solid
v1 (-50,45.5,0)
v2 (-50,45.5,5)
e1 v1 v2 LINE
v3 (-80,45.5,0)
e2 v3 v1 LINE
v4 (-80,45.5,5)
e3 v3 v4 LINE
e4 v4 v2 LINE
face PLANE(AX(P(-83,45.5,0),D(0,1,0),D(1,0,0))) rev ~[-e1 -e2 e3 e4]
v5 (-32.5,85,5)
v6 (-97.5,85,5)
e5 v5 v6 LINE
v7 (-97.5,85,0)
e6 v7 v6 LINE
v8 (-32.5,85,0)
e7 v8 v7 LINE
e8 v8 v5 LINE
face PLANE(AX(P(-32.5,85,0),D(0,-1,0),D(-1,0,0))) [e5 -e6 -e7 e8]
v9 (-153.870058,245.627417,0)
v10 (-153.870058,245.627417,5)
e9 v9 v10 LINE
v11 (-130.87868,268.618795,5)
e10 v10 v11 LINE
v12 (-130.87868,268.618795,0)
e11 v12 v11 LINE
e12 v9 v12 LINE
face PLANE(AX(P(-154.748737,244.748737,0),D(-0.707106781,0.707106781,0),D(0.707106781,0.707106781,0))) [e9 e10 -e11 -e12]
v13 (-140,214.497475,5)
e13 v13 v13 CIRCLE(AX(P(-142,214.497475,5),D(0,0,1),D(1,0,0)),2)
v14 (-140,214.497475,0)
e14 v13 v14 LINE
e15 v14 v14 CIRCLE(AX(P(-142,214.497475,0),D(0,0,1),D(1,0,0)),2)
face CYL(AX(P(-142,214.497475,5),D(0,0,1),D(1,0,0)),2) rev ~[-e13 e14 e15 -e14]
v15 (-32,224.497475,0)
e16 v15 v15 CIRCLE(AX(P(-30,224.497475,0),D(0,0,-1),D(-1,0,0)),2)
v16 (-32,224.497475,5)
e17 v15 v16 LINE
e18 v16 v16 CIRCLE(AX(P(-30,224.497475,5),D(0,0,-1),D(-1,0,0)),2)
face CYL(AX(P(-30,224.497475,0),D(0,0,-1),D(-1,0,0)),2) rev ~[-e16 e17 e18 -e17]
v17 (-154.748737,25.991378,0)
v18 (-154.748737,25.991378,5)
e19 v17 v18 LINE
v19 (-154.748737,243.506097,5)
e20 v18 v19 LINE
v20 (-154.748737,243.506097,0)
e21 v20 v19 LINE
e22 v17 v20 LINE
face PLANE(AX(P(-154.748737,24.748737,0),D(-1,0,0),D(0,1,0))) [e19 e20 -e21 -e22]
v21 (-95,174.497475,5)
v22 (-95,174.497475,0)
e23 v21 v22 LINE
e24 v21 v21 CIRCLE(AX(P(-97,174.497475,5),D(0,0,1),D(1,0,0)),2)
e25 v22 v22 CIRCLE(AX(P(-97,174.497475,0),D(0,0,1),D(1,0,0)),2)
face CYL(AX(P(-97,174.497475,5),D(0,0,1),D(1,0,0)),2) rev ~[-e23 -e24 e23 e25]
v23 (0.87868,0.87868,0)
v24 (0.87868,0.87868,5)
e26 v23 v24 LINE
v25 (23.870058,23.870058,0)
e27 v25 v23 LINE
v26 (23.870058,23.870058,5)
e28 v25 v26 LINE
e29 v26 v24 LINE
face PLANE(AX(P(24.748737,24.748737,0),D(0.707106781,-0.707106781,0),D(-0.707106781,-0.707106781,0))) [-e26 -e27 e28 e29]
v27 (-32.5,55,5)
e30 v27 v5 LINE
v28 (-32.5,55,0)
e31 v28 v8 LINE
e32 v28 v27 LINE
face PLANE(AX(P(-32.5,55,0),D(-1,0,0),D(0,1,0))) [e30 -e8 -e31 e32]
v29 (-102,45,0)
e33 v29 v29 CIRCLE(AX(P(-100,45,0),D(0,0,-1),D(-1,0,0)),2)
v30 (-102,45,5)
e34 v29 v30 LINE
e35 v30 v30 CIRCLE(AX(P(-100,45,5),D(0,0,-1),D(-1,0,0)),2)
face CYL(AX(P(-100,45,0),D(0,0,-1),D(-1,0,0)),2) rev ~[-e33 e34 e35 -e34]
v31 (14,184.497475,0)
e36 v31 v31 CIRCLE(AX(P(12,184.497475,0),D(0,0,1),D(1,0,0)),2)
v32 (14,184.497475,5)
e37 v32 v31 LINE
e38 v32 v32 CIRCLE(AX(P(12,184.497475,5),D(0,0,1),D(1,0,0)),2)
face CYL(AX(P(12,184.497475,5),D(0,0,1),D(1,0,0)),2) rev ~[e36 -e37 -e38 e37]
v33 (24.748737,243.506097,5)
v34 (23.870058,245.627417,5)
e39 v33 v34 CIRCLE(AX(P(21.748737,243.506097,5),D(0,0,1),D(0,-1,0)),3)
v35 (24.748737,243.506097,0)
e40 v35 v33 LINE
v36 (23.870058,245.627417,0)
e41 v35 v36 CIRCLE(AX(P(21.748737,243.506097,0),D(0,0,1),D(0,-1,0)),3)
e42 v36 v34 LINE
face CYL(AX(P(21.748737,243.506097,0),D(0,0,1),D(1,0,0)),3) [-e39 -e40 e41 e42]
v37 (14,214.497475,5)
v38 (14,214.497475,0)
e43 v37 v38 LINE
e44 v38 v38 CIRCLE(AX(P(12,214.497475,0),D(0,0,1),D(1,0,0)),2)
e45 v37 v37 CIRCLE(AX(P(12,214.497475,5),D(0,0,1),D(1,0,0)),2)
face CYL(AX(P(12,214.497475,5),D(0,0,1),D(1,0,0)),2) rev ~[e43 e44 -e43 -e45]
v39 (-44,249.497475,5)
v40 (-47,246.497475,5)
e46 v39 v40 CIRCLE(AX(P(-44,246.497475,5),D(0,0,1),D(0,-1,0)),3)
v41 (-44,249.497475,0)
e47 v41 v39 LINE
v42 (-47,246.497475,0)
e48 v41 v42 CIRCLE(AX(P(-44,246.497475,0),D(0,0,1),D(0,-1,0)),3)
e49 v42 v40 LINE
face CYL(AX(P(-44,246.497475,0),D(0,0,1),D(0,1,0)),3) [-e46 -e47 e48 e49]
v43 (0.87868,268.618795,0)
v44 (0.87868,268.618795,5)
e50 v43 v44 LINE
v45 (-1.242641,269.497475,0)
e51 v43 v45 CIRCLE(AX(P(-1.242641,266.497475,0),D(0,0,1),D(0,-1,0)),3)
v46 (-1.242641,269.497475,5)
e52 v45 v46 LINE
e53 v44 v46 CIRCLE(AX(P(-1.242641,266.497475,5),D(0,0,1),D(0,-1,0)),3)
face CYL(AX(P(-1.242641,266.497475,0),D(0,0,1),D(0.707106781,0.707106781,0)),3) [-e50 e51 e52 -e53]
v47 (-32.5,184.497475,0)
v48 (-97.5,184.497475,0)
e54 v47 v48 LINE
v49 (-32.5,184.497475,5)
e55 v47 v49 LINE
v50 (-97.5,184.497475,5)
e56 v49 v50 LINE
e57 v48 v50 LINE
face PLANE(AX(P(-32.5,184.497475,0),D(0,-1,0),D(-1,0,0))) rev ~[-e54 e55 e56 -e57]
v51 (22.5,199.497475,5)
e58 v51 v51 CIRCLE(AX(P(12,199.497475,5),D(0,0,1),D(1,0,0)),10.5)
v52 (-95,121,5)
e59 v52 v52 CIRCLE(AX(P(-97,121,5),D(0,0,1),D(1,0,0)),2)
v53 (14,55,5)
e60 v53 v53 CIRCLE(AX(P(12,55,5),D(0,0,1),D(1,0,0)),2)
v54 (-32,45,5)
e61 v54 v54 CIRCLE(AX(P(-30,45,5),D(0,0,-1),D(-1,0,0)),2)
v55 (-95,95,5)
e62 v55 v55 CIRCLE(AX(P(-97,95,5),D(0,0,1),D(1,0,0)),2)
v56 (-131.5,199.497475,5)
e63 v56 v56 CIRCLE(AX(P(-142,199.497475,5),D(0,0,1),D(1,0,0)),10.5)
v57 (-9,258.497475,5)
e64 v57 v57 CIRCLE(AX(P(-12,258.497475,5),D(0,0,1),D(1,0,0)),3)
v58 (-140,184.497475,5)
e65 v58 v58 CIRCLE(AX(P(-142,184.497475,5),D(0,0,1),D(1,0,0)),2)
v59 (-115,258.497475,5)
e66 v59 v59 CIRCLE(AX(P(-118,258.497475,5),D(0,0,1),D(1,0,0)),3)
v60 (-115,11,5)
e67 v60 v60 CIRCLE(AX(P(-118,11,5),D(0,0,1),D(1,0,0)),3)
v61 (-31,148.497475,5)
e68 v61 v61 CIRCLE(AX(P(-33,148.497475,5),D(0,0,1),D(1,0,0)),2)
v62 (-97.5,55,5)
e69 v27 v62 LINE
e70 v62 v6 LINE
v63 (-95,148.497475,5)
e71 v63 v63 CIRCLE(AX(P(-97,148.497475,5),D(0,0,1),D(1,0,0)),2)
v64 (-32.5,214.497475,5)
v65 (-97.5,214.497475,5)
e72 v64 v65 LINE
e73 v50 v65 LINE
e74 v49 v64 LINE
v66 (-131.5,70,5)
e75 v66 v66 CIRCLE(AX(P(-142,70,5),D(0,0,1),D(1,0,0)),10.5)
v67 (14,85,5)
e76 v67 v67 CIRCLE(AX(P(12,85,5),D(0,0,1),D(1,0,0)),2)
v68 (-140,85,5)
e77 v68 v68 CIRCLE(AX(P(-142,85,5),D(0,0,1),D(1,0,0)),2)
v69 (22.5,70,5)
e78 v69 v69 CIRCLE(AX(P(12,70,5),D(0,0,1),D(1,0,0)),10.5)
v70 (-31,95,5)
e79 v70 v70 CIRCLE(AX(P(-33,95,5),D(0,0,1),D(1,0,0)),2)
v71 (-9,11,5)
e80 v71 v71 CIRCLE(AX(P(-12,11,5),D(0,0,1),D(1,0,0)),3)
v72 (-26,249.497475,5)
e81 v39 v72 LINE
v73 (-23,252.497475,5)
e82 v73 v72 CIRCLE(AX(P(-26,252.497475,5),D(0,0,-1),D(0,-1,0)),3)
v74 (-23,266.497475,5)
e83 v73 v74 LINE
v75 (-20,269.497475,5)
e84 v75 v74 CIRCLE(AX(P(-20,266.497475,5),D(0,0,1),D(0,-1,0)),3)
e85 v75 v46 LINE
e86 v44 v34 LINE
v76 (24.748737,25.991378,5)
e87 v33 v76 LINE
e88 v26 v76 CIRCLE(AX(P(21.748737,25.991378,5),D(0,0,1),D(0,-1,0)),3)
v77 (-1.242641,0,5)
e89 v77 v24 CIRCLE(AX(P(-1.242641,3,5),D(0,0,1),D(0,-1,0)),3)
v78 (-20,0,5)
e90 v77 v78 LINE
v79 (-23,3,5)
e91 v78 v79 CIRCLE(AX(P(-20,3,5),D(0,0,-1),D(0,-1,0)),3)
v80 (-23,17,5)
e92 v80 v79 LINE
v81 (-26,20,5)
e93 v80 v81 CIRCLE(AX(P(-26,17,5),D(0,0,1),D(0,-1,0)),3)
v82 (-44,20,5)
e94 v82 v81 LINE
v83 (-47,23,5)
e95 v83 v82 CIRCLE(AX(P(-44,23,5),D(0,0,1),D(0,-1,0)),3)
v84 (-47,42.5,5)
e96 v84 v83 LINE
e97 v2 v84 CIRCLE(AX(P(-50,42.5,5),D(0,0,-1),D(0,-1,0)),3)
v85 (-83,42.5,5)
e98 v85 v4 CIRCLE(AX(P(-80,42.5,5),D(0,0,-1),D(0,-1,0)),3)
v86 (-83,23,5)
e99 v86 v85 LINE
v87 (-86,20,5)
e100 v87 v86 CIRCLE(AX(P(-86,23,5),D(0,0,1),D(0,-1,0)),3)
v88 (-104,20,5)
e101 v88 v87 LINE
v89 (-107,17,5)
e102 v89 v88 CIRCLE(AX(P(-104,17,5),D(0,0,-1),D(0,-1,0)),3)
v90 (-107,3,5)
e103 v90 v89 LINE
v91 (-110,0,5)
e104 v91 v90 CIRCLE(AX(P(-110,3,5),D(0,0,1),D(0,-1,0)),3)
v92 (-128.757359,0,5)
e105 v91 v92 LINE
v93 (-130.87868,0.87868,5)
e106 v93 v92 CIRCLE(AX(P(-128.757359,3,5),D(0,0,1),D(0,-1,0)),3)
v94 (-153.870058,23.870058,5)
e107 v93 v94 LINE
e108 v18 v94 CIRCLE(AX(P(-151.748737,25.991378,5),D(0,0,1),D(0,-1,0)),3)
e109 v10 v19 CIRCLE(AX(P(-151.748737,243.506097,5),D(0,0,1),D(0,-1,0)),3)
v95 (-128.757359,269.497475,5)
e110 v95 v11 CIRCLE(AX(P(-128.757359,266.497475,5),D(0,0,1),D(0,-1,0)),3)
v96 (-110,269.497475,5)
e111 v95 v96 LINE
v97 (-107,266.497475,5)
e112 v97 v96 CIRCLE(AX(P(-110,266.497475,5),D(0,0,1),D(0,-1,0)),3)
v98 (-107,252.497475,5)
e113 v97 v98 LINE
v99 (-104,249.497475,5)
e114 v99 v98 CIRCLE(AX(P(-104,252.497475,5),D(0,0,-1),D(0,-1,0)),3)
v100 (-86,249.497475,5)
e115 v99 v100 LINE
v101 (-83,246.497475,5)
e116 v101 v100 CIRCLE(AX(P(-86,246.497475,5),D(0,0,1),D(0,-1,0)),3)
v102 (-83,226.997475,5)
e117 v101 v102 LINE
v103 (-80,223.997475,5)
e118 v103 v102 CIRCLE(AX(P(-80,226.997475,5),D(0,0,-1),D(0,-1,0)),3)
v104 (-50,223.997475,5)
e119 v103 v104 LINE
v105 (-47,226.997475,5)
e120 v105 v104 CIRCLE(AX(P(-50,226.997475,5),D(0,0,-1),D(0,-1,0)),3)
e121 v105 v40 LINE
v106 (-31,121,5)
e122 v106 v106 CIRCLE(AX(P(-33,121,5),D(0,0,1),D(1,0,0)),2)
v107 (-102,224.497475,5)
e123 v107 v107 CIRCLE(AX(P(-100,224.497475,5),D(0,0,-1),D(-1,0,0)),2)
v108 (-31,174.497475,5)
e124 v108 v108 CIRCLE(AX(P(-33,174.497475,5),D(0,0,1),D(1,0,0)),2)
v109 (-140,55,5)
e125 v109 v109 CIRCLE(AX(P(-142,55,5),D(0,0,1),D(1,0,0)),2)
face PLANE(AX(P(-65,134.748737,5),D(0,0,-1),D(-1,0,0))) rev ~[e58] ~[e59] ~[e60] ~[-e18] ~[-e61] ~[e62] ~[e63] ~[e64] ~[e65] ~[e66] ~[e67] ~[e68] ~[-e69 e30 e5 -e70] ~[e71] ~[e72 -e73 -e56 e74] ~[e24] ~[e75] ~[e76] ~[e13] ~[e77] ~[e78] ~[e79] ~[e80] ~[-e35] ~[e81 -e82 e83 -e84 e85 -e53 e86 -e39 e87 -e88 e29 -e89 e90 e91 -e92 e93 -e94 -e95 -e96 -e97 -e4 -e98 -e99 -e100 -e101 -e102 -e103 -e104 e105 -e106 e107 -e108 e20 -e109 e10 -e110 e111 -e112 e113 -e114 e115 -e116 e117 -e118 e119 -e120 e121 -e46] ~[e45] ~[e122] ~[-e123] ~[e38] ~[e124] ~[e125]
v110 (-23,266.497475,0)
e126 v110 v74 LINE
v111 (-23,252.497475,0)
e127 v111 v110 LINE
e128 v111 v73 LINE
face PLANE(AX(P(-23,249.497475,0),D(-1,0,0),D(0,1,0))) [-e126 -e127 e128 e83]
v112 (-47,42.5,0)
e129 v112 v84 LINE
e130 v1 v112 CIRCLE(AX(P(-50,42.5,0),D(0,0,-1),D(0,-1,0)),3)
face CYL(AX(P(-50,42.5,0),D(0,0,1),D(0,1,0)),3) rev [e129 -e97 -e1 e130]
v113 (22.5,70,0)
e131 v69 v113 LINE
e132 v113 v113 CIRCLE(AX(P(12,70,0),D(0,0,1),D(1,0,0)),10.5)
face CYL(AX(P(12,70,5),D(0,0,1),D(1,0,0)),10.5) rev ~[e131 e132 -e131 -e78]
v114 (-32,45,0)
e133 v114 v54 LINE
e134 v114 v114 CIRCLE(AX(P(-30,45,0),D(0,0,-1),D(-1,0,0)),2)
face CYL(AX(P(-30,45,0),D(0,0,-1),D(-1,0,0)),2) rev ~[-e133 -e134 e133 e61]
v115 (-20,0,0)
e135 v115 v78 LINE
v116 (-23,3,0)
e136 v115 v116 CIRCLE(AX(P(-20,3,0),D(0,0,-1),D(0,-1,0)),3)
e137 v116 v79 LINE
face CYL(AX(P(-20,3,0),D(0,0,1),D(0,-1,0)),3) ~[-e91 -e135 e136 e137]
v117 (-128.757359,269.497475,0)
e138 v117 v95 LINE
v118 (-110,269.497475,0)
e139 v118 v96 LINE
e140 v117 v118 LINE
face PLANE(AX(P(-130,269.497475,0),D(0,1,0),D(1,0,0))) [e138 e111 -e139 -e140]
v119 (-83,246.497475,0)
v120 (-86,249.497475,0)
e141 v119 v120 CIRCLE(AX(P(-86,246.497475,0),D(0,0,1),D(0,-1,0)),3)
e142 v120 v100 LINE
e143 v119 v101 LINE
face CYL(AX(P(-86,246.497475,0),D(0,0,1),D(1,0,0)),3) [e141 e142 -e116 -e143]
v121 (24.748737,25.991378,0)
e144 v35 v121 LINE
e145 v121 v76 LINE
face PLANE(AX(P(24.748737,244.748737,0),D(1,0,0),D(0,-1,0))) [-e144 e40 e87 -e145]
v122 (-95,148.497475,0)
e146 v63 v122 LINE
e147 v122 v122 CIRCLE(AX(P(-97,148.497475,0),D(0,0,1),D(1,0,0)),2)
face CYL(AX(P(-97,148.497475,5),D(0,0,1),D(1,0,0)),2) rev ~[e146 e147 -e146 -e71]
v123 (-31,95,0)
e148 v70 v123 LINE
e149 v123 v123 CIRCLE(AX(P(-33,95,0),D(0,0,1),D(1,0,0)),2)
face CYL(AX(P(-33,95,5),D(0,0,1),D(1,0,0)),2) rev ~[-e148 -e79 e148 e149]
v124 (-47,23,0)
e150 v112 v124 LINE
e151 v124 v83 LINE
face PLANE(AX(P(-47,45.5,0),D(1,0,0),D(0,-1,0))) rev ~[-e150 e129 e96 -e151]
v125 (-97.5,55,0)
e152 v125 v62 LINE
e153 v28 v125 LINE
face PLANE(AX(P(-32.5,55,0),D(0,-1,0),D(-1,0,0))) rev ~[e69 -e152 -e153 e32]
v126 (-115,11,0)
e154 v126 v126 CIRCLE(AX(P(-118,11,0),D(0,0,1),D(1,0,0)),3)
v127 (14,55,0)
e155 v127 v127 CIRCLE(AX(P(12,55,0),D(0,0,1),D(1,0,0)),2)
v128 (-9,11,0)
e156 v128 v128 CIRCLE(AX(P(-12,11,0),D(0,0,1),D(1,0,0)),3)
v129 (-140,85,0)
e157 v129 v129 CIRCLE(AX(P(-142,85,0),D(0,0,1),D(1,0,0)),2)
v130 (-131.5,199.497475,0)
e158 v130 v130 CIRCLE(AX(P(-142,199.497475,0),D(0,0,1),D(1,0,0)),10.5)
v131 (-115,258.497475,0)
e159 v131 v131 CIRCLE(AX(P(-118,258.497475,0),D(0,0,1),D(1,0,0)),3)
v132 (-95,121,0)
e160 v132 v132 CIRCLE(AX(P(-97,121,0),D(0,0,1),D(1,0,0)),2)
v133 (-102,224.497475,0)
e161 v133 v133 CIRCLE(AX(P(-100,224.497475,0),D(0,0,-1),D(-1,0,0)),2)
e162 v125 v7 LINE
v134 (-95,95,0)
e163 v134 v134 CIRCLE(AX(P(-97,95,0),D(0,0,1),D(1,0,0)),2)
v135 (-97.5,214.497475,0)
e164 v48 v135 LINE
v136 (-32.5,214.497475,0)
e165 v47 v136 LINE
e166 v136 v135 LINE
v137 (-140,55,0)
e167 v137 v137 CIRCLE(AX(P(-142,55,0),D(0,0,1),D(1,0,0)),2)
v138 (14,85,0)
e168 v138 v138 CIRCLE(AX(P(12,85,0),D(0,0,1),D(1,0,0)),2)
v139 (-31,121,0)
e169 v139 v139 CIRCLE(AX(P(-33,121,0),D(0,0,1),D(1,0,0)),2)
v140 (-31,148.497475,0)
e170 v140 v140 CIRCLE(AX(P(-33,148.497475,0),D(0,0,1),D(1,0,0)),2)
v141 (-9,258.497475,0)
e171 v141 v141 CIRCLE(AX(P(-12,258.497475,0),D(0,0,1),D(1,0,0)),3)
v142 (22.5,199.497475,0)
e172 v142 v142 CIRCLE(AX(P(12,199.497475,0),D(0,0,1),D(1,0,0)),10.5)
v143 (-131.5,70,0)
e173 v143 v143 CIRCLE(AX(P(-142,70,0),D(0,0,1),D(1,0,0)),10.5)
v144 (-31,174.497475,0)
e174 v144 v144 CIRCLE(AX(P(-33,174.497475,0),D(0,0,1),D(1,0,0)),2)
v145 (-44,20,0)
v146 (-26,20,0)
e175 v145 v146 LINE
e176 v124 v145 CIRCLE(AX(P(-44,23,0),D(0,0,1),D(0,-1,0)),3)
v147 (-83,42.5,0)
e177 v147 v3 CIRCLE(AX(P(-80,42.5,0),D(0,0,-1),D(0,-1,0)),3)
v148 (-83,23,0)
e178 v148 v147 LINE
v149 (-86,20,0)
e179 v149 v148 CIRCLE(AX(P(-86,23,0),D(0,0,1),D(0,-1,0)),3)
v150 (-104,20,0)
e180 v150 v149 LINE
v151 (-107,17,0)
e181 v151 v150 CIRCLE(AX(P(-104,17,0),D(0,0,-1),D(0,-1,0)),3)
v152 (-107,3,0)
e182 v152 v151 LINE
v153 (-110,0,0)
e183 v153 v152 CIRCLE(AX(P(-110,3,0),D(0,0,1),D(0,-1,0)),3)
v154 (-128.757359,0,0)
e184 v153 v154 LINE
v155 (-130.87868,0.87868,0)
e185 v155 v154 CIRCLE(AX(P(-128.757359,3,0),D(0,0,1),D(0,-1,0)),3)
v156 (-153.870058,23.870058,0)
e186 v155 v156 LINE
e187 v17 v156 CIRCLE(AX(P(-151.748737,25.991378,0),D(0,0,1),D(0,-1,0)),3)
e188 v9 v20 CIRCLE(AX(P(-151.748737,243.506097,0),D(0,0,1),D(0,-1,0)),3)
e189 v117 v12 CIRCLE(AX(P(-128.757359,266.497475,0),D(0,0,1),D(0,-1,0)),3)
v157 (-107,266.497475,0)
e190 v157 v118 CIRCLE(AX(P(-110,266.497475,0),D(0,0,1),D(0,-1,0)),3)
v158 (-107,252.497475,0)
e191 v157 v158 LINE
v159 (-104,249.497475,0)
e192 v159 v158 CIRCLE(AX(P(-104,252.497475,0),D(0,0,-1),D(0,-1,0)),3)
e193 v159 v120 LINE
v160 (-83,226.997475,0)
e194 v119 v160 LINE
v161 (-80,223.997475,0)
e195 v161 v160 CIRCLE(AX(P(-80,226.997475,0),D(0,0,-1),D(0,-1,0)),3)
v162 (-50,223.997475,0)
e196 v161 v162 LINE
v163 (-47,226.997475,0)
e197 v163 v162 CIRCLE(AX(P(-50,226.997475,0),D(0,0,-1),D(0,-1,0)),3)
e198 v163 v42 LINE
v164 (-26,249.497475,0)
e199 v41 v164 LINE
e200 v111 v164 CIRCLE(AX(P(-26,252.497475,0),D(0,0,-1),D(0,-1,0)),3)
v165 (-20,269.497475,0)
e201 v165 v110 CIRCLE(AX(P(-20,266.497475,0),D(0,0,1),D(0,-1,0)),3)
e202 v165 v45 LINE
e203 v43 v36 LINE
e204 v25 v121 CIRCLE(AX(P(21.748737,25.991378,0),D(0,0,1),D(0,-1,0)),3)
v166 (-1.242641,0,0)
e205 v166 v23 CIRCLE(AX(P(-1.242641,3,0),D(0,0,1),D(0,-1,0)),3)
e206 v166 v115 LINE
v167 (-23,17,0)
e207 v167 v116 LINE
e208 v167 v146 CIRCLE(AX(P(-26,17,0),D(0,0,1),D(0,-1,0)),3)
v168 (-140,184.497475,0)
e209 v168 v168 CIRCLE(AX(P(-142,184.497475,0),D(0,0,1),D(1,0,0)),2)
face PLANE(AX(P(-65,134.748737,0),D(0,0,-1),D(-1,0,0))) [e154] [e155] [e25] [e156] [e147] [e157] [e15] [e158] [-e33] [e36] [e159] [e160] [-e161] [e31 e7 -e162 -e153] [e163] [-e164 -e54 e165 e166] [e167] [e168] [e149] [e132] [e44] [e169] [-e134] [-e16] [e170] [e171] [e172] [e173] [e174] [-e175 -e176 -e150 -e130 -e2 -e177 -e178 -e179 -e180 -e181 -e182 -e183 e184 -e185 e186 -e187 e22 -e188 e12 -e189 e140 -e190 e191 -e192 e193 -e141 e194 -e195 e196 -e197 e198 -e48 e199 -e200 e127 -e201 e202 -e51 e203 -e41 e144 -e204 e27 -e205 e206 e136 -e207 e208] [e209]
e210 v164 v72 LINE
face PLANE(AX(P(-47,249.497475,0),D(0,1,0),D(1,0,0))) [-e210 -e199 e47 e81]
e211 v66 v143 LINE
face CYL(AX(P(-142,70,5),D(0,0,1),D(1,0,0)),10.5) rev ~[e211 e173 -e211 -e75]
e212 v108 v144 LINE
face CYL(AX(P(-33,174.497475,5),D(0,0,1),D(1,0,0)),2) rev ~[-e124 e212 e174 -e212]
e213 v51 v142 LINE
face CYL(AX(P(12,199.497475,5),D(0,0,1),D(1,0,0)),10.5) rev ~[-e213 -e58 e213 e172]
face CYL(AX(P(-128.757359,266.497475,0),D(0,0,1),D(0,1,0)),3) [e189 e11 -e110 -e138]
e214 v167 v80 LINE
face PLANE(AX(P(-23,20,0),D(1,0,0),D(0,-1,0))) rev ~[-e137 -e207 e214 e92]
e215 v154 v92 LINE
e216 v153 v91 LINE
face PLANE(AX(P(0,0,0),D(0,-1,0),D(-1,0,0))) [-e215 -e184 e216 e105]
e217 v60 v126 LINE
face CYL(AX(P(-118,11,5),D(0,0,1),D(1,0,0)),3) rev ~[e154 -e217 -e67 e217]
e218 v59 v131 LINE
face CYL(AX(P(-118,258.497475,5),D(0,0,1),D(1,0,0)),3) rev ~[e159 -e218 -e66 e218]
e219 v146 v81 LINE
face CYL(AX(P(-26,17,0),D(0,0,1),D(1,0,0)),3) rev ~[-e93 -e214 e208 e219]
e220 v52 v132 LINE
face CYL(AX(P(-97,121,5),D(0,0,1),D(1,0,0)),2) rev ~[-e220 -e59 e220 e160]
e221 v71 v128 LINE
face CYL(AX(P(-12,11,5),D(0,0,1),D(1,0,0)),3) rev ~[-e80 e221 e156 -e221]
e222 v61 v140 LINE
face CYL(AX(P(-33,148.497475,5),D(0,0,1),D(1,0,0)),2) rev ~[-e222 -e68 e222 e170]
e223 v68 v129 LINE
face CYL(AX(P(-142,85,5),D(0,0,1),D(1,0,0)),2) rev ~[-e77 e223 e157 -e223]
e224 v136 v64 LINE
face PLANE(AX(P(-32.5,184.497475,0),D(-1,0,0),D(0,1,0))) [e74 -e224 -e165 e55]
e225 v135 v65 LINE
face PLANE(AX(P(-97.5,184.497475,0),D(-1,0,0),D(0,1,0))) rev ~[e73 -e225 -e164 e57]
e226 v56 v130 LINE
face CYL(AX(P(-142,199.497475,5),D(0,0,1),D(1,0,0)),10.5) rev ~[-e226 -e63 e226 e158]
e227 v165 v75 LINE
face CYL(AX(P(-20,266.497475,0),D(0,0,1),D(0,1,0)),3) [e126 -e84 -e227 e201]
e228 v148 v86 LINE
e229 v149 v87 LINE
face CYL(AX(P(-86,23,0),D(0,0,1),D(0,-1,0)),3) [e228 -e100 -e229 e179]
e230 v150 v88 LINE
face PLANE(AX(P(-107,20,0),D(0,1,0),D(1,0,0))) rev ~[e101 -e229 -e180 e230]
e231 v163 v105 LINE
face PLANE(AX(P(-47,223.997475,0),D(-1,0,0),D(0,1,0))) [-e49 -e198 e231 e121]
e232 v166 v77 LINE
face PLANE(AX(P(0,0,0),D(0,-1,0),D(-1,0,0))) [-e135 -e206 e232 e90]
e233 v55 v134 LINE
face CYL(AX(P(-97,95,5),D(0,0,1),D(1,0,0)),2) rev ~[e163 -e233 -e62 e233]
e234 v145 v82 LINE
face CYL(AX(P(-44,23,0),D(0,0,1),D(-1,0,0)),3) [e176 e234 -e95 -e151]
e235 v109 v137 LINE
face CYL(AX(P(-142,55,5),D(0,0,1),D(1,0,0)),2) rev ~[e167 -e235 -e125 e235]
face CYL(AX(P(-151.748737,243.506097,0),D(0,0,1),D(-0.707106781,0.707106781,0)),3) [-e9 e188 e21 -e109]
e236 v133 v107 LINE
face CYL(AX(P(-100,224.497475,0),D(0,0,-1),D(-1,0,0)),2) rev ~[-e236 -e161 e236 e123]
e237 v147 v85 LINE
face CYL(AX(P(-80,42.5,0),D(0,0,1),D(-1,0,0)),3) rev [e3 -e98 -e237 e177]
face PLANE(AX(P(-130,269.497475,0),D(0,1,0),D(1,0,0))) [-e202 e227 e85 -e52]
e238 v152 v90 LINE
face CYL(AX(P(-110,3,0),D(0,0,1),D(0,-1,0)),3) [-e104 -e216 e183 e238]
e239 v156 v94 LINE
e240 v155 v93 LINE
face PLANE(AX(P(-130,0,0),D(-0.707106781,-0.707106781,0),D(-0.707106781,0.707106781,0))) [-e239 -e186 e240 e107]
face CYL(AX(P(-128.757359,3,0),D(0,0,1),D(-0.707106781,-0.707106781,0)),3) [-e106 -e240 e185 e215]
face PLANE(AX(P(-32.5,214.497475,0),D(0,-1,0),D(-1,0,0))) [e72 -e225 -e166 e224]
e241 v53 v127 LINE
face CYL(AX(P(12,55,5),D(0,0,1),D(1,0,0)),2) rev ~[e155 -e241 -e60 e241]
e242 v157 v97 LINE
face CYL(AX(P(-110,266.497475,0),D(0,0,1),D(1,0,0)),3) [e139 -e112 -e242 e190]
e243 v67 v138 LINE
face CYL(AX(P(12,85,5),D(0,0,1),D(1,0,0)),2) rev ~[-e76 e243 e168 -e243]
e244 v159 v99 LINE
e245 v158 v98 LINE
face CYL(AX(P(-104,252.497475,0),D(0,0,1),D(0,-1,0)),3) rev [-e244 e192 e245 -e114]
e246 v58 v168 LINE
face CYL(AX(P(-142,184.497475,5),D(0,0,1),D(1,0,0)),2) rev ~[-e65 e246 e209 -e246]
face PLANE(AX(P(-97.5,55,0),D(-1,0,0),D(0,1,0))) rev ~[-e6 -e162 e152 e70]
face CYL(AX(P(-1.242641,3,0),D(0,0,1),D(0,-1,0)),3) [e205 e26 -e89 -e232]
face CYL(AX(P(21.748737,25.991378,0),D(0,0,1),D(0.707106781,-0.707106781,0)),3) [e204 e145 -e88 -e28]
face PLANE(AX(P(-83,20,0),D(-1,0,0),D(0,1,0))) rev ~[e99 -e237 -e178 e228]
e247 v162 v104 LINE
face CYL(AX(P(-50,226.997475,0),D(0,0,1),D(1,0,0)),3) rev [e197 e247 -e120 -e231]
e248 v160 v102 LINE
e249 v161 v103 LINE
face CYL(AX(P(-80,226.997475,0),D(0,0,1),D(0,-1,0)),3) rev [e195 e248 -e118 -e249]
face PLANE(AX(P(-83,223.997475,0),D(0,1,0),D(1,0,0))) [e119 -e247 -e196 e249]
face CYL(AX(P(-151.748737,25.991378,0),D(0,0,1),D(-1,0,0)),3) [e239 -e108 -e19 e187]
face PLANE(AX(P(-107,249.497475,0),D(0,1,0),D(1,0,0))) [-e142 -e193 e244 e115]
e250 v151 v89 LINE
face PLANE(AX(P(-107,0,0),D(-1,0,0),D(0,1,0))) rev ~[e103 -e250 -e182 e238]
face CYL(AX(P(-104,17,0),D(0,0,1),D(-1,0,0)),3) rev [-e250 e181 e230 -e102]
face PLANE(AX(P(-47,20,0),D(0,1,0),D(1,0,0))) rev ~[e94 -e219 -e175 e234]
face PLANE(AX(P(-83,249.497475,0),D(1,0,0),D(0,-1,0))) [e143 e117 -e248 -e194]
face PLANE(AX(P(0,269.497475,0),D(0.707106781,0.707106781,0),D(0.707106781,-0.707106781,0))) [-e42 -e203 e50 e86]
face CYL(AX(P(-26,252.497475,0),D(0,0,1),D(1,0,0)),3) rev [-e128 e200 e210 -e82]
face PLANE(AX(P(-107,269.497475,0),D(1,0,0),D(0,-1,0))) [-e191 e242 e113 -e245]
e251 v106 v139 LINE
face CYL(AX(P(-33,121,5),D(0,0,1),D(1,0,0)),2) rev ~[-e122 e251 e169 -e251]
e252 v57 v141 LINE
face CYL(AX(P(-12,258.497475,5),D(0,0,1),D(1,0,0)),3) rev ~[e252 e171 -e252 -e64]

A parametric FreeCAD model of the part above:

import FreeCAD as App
import Part
import Sketcher

V = App.Vector


def edges_at(feature, points):
    """Names of the edges that pass closest to the given points."""
    edges = feature.Shape.Edges
    near = lambda p: min(range(len(edges)), key=lambda i: edges[i].distToShape(Part.Vertex(*p))[0])
    return sorted({f"Edge{near(p) + 1}" for p in points})

doc = App.newDocument("Part")
body = doc.addObject("PartDesign::Body", "Body")

sketch1 = doc.addObject("Sketcher::SketchObject", "Sketch")
body.addObject(sketch1)
sketch1.AttachmentSupport = (doc.XY_Plane, [""])
sketch1.MapMode = "FlatFace"
sketch1.addGeometry([
    Part.LineSegment(V(-130, 0, 0), V(0, 0, 0)),
    Part.LineSegment(V(0, 0, 0), V(25, 25, 0)),
    Part.LineSegment(V(25, 25, 0), V(25, 245, 0)),
    Part.LineSegment(V(25, 245, 0), V(0, 269, 0)),
    Part.LineSegment(V(0, 269, 0), V(-130, 269, 0)),
    Part.LineSegment(V(-130, 269, 0), V(-155, 245, 0)),
    Part.LineSegment(V(-155, 245, 0), V(-155, 25, 0)),
    Part.LineSegment(V(-155, 25, 0), V(-130, 0, 0)),
], False)
sketch1.addConstraint([
    Sketcher.Constraint("Coincident", 0, 2, 1, 1),
    Sketcher.Constraint("Coincident", 1, 2, 2, 1),
    Sketcher.Constraint("Coincident", 2, 2, 3, 1),
    Sketcher.Constraint("Coincident", 3, 2, 4, 1),
    Sketcher.Constraint("Coincident", 4, 2, 5, 1),
    Sketcher.Constraint("Coincident", 5, 2, 6, 1),
    Sketcher.Constraint("Coincident", 6, 2, 7, 1),
    Sketcher.Constraint("Coincident", 7, 2, 0, 1),
    Sketcher.Constraint("Horizontal", 0),
    Sketcher.Constraint("Vertical", 2),
    Sketcher.Constraint("Horizontal", 4),
    Sketcher.Constraint("Vertical", 6),
    Sketcher.Constraint("Coincident", 0, 2, -1, 1),
    Sketcher.Constraint("PointOnObject", 3, 2, -2),
    Sketcher.Constraint("Perpendicular", 1, 3),
    Sketcher.Constraint("Perpendicular", 3, 5),
    Sketcher.Constraint("Perpendicular", 5, 7),
    Sketcher.Constraint("Horizontal", 2, 2, 5, 2),
    Sketcher.Constraint("Horizontal", 1, 2, 6, 2),
    Sketcher.Constraint("Vertical", 4, 2, 7, 2),
    Sketcher.Constraint("DistanceX", 0, 1, 0, 2, 130.0),
    Sketcher.Constraint("DistanceY", 2, 1, 2, 2, 220.0),
    Sketcher.Constraint("Distance", 1, 35.0),
])
pad1 = doc.addObject("PartDesign::Pad", "Pad")
body.addObject(pad1)
pad1.Profile = sketch1
pad1.Length = 5

sketch2 = doc.addObject("Sketcher::SketchObject", "Sketch001")
body.addObject(sketch2)
sketch2.AttachmentSupport = (doc.XY_Plane, [""])
sketch2.MapMode = "FlatFace"
sketch2.addGeometry([
    Part.Circle(V(-30, 45, 0), V(0, 0, 1), 2),
    Part.Circle(V(-100, 45, 0), V(0, 0, 1), 2),
    Part.Circle(V(-100, 224.5, 0), V(0, 0, 1), 2),
    Part.Circle(V(-30, 224.5, 0), V(0, 0, 1), 2),
    Part.LineSegment(V(-107, 0, 0), V(-107, 20, 0)),
    Part.LineSegment(V(-107, 20, 0), V(-83, 20, 0)),
    Part.LineSegment(V(-83, 20, 0), V(-83, 45.5, 0)),
    Part.LineSegment(V(-83, 45.5, 0), V(-47, 45.5, 0)),
    Part.LineSegment(V(-47, 45.5, 0), V(-47, 20, 0)),
    Part.LineSegment(V(-47, 20, 0), V(-23, 20, 0)),
    Part.LineSegment(V(-23, 20, 0), V(-23, 0, 0)),
    Part.LineSegment(V(-23, 0, 0), V(-107, 0, 0)),
    Part.LineSegment(V(-107, 269.5, 0), V(-23, 269.5, 0)),
    Part.LineSegment(V(-23, 269.5, 0), V(-23, 249.5, 0)),
    Part.LineSegment(V(-23, 249.5, 0), V(-47, 249.5, 0)),
    Part.LineSegment(V(-47, 249.5, 0), V(-47, 224, 0)),
    Part.LineSegment(V(-47, 224, 0), V(-83, 224, 0)),
    Part.LineSegment(V(-83, 224, 0), V(-83, 249.5, 0)),
    Part.LineSegment(V(-83, 249.5, 0), V(-107, 249.5, 0)),
    Part.LineSegment(V(-107, 249.5, 0), V(-107, 269.5, 0)),
    Part.LineSegment(V(-32.5, 214.5, 0), V(-32.5, 184.5, 0)),
    Part.LineSegment(V(-32.5, 184.5, 0), V(-97.5, 184.5, 0)),
    Part.LineSegment(V(-97.5, 184.5, 0), V(-97.5, 214.5, 0)),
    Part.LineSegment(V(-97.5, 214.5, 0), V(-32.5, 214.5, 0)),
    Part.LineSegment(V(-32.5, 85, 0), V(-32.5, 55, 0)),
    Part.LineSegment(V(-32.5, 55, 0), V(-97.5, 55, 0)),
    Part.LineSegment(V(-97.5, 55, 0), V(-97.5, 85, 0)),
    Part.LineSegment(V(-97.5, 85, 0), V(-32.5, 85, 0)),
], False)
sketch2.addConstraint([
    Sketcher.Constraint("Coincident", 4, 2, 5, 1),
    Sketcher.Constraint("Coincident", 5, 2, 6, 1),
    Sketcher.Constraint("Coincident", 6, 2, 7, 1),
    Sketcher.Constraint("Coincident", 7, 2, 8, 1),
    Sketcher.Constraint("Coincident", 8, 2, 9, 1),
    Sketcher.Constraint("Coincident", 9, 2, 10, 1),
    Sketcher.Constraint("Coincident", 10, 2, 11, 1),
    Sketcher.Constraint("Coincident", 11, 2, 4, 1),
    Sketcher.Constraint("Coincident", 12, 2, 13, 1),
    Sketcher.Constraint("Coincident", 13, 2, 14, 1),
    Sketcher.Constraint("Coincident", 14, 2, 15, 1),
    Sketcher.Constraint("Coincident", 15, 2, 16, 1),
    Sketcher.Constraint("Coincident", 16, 2, 17, 1),
    Sketcher.Constraint("Coincident", 17, 2, 18, 1),
    Sketcher.Constraint("Coincident", 18, 2, 19, 1),
    Sketcher.Constraint("Coincident", 19, 2, 12, 1),
    Sketcher.Constraint("Coincident", 20, 2, 21, 1),
    Sketcher.Constraint("Coincident", 21, 2, 22, 1),
    Sketcher.Constraint("Coincident", 22, 2, 23, 1),
    Sketcher.Constraint("Coincident", 23, 2, 20, 1),
    Sketcher.Constraint("Coincident", 24, 2, 25, 1),
    Sketcher.Constraint("Coincident", 25, 2, 26, 1),
    Sketcher.Constraint("Coincident", 26, 2, 27, 1),
    Sketcher.Constraint("Coincident", 27, 2, 24, 1),
    Sketcher.Constraint("Vertical", 4),
    Sketcher.Constraint("Horizontal", 5),
    Sketcher.Constraint("Vertical", 6),
    Sketcher.Constraint("Horizontal", 7),
    Sketcher.Constraint("Vertical", 8),
    Sketcher.Constraint("Horizontal", 9),
    Sketcher.Constraint("Vertical", 10),
    Sketcher.Constraint("Horizontal", 11),
    Sketcher.Constraint("Horizontal", 12),
    Sketcher.Constraint("Vertical", 13),
    Sketcher.Constraint("Horizontal", 14),
    Sketcher.Constraint("Vertical", 15),
    Sketcher.Constraint("Horizontal", 16),
    Sketcher.Constraint("Vertical", 17),
    Sketcher.Constraint("Horizontal", 18),
    Sketcher.Constraint("Vertical", 19),
    Sketcher.Constraint("Vertical", 20),
    Sketcher.Constraint("Horizontal", 21),
    Sketcher.Constraint("Vertical", 22),
    Sketcher.Constraint("Horizontal", 23),
    Sketcher.Constraint("Vertical", 24),
    Sketcher.Constraint("Horizontal", 25),
    Sketcher.Constraint("Vertical", 26),
    Sketcher.Constraint("Horizontal", 27),
    Sketcher.Constraint("Equal", 0, 1),
    Sketcher.Constraint("Equal", 1, 2),
    Sketcher.Constraint("Equal", 2, 3),
    Sketcher.Constraint("PointOnObject", 10, 2, -1),
    Sketcher.Constraint("Horizontal", 0, 3, 1, 3),
    Sketcher.Constraint("Horizontal", 2, 3, 3, 3),
    Sketcher.Constraint("Horizontal", 5, 2, 8, 2),
    Sketcher.Constraint("Horizontal", 14, 2, 17, 2),
    Sketcher.Constraint("Vertical", 1, 3, 2, 3),
    Sketcher.Constraint("Vertical", 0, 3, 3, 3),
    Sketcher.Constraint("Vertical", 10, 2, 12, 2),
    Sketcher.Constraint("Vertical", 8, 2, 14, 2),
    Sketcher.Constraint("Vertical", 6, 2, 16, 2),
    Sketcher.Constraint("Vertical", 11, 2, 18, 2),
    Sketcher.Constraint("Vertical", 23, 2, 24, 2),
    Sketcher.Constraint("Vertical", 22, 2, 25, 2),
    Sketcher.Constraint("Equal", 5, 9),
    Sketcher.Constraint("Equal", 10, 13),
    Sketcher.Constraint("Equal", 8, 15),
    Sketcher.Constraint("Equal", 22, 24),
    Sketcher.Constraint("Diameter", 0, 4.0),
    Sketcher.Constraint("DistanceX", 5, 1, 5, 2, 24.0),
    Sketcher.Constraint("DistanceX", 7, 1, 7, 2, 36.0),
    Sketcher.Constraint("DistanceX", 21, 2, 21, 1, 65.0),
    Sketcher.Constraint("DistanceY", 4, 1, 4, 2, 20.0),
    Sketcher.Constraint("DistanceY", 20, 2, 20, 1, 30.0),
    Sketcher.Constraint("DistanceY", 6, 1, 6, 2, 25.5),
    Sketcher.Constraint("DistanceX", 0, 3, -1, 1, 30.0),
    Sketcher.Constraint("DistanceY", -1, 1, 0, 3, 45.0),
    Sketcher.Constraint("DistanceX", 1, 3, -1, 1, 100.0),
    Sketcher.Constraint("DistanceX", 4, 2, -1, 1, 107.0),
    Sketcher.Constraint("DistanceY", -1, 1, 24, 2, 55.0),
    Sketcher.Constraint("DistanceY", 3, 3, 12, 2, 45.0),
    Sketcher.Constraint("DistanceY", 20, 2, 3, 3, 40.0),
    Sketcher.Constraint("DistanceX", 20, 2, -1, 1, 32.5),
    Sketcher.Constraint("DistanceY", -1, 1, 2, 3, 224.497475),
])
pocket1 = doc.addObject("PartDesign::Pocket", "Pocket")
body.addObject(pocket1)
pocket1.Profile = sketch2
pocket1.Type = "ThroughAll"
pocket1.Reversed = True
doc.recompute()

fillet = doc.addObject("PartDesign::Fillet", "Fillet")
body.addObject(fillet)
fillet.Base = (pocket1, edges_at(pocket1, [
    (0, 0, 2.5),
    (-130, 0, 2.5),
    (-154.749, 24.749, 2.5),
    (-154.749, 244.749, 2.5),
    (-130, 269.497, 2.5),
    (0, 269.497, 2.5),
    (24.749, 244.749, 2.5),
    (24.749, 24.749, 2.5),
    (-23, 249.497, 2.5),
    (-23, 269.497, 2.5),
    (-107, 269.497, 2.5),
    (-107, 249.497, 2.5),
    (-83, 249.497, 2.5),
    (-83, 223.997, 2.5),
    (-47, 223.997, 2.5),
    (-47, 249.497, 2.5),
    (-107, 0, 2.5),
    (-23, 0, 2.5),
    (-23, 20, 2.5),
    (-47, 20, 2.5),
    (-47, 45.5, 2.5),
    (-83, 45.5, 2.5),
    (-83, 20, 2.5),
    (-107, 20, 2.5),
]))
fillet.Radius = 3

sketch3 = doc.addObject("Sketcher::SketchObject", "Sketch002")
body.addObject(sketch3)
sketch3.AttachmentSupport = (doc.XY_Plane, [""])
sketch3.MapMode = "FlatFace"
sketch3.AttachmentOffset = App.Placement(V(0, 0, 5), App.Rotation())
sketch3.addGeometry(Part.Circle(V(-142, 55, 0), V(0, 0, 1), 2), False)
sketch3.addConstraint([
    Sketcher.Constraint("Diameter", 0, 4.0),
    Sketcher.Constraint("DistanceX", 0, 3, -1, 1, 142.0),
    Sketcher.Constraint("DistanceY", -1, 1, 0, 3, 55.0),
])
pocket2 = doc.addObject("PartDesign::Pocket", "Pocket001")
body.addObject(pocket2)
pocket2.Profile = sketch3
pocket2.Type = "UpToFirst"

sketch4 = doc.addObject("Sketcher::SketchObject", "Sketch003")
body.addObject(sketch4)
sketch4.AttachmentSupport = (doc.XY_Plane, [""])
sketch4.MapMode = "FlatFace"
sketch4.AttachmentOffset = App.Placement(V(0, 0, 5), App.Rotation())
sketch4.addGeometry(Part.Circle(V(-142, 85, 0), V(0, 0, 1), 2), False)
sketch4.addConstraint([
    Sketcher.Constraint("Diameter", 0, 4.0),
    Sketcher.Constraint("DistanceX", 0, 3, -1, 1, 142.0),
    Sketcher.Constraint("DistanceY", -1, 1, 0, 3, 85.0),
])
pocket3 = doc.addObject("PartDesign::Pocket", "Pocket002")
body.addObject(pocket3)
pocket3.Profile = sketch4
pocket3.Type = "UpToFirst"

sketch5 = doc.addObject("Sketcher::SketchObject", "Sketch004")
body.addObject(sketch5)
sketch5.AttachmentSupport = (doc.XY_Plane, [""])
sketch5.MapMode = "FlatFace"
sketch5.AttachmentOffset = App.Placement(V(0, 0, 5), App.Rotation())
sketch5.addGeometry(Part.Circle(V(-142, 70, 0), V(0, 0, 1), 10), False)
sketch5.addConstraint([
    Sketcher.Constraint("Diameter", 0, 21.0),
    Sketcher.Constraint("DistanceX", 0, 3, -1, 1, 142.0),
    Sketcher.Constraint("DistanceY", -1, 1, 0, 3, 70.0),
])
pocket4 = doc.addObject("PartDesign::Pocket", "Pocket003")
body.addObject(pocket4)
pocket4.Profile = sketch5
pocket4.Type = "UpToFirst"

sketch6 = doc.addObject("Sketcher::SketchObject", "Sketch005")
body.addObject(sketch6)
sketch6.AttachmentSupport = (doc.XY_Plane, [""])
sketch6.MapMode = "FlatFace"
sketch6.AttachmentOffset = App.Placement(V(0, 0, 5), App.Rotation())
sketch6.addGeometry(Part.Circle(V(-142, 214.5, 0), V(0, 0, 1), 2), False)
sketch6.addConstraint([
    Sketcher.Constraint("Diameter", 0, 4.0),
    Sketcher.Constraint("DistanceX", 0, 3, -1, 1, 142.0),
    Sketcher.Constraint("DistanceY", -1, 1, 0, 3, 214.497475),
])
pocket5 = doc.addObject("PartDesign::Pocket", "Pocket004")
body.addObject(pocket5)
pocket5.Profile = sketch6
pocket5.Type = "UpToFirst"

sketch7 = doc.addObject("Sketcher::SketchObject", "Sketch006")
body.addObject(sketch7)
sketch7.AttachmentSupport = (doc.XY_Plane, [""])
sketch7.MapMode = "FlatFace"
sketch7.AttachmentOffset = App.Placement(V(0, 0, 5), App.Rotation())
sketch7.addGeometry(Part.Circle(V(-142, 184.5, 0), V(0, 0, 1), 2), False)
sketch7.addConstraint([
    Sketcher.Constraint("Diameter", 0, 4.0),
    Sketcher.Constraint("DistanceX", 0, 3, -1, 1, 142.0),
    Sketcher.Constraint("DistanceY", -1, 1, 0, 3, 184.497475),
])
pocket6 = doc.addObject("PartDesign::Pocket", "Pocket005")
body.addObject(pocket6)
pocket6.Profile = sketch7
pocket6.Type = "UpToFirst"

sketch8 = doc.addObject("Sketcher::SketchObject", "Sketch007")
body.addObject(sketch8)
sketch8.AttachmentSupport = (doc.XY_Plane, [""])
sketch8.MapMode = "FlatFace"
sketch8.AttachmentOffset = App.Placement(V(0, 0, 5), App.Rotation())
sketch8.addGeometry(Part.Circle(V(-142, 199, 0), V(0, 0, 1), 10), False)
sketch8.addConstraint([
    Sketcher.Constraint("Diameter", 0, 21.0),
    Sketcher.Constraint("DistanceX", 0, 3, -1, 1, 142.0),
    Sketcher.Constraint("DistanceY", -1, 1, 0, 3, 199.497475),
])
pocket7 = doc.addObject("PartDesign::Pocket", "Pocket006")
body.addObject(pocket7)
pocket7.Profile = sketch8
pocket7.Type = "UpToFirst"

sketch9 = doc.addObject("Sketcher::SketchObject", "Sketch008")
body.addObject(sketch9)
sketch9.AttachmentSupport = (doc.XY_Plane, [""])
sketch9.MapMode = "FlatFace"
sketch9.AttachmentOffset = App.Placement(V(0, 0, 5), App.Rotation())
sketch9.addGeometry(Part.Circle(V(12, 55, 0), V(0, 0, 1), 2), False)
sketch9.addConstraint([
    Sketcher.Constraint("Diameter", 0, 4.0),
    Sketcher.Constraint("DistanceX", -1, 1, 0, 3, 12.0),
    Sketcher.Constraint("DistanceY", -1, 1, 0, 3, 55.0),
])
pocket8 = doc.addObject("PartDesign::Pocket", "Pocket007")
body.addObject(pocket8)
pocket8.Profile = sketch9
pocket8.Type = "UpToFirst"

sketch10 = doc.addObject("Sketcher::SketchObject", "Sketch009")
body.addObject(sketch10)
sketch10.AttachmentSupport = (doc.XY_Plane, [""])
sketch10.MapMode = "FlatFace"
sketch10.AttachmentOffset = App.Placement(V(0, 0, 5), App.Rotation())
sketch10.addGeometry(Part.Circle(V(12, 184.5, 0), V(0, 0, 1), 2), False)
sketch10.addConstraint([
    Sketcher.Constraint("Diameter", 0, 4.0),
    Sketcher.Constraint("DistanceX", -1, 1, 0, 3, 12.0),
    Sketcher.Constraint("DistanceY", -1, 1, 0, 3, 184.497475),
])
pocket9 = doc.addObject("PartDesign::Pocket", "Pocket008")
body.addObject(pocket9)
pocket9.Profile = sketch10
pocket9.Type = "UpToFirst"

sketch11 = doc.addObject("Sketcher::SketchObject", "Sketch010")
body.addObject(sketch11)
sketch11.AttachmentSupport = (doc.XY_Plane, [""])
sketch11.MapMode = "FlatFace"
sketch11.AttachmentOffset = App.Placement(V(0, 0, 5), App.Rotation())
sketch11.addGeometry(Part.Circle(V(12, 214.5, 0), V(0, 0, 1), 2), False)
sketch11.addConstraint([
    Sketcher.Constraint("Diameter", 0, 4.0),
    Sketcher.Constraint("DistanceX", -1, 1, 0, 3, 12.0),
    Sketcher.Constraint("DistanceY", -1, 1, 0, 3, 214.497475),
])
pocket10 = doc.addObject("PartDesign::Pocket", "Pocket009")
body.addObject(pocket10)
pocket10.Profile = sketch11
pocket10.Type = "UpToFirst"

sketch12 = doc.addObject("Sketcher::SketchObject", "Sketch011")
body.addObject(sketch12)
sketch12.AttachmentSupport = (doc.XY_Plane, [""])
sketch12.MapMode = "FlatFace"
sketch12.AttachmentOffset = App.Placement(V(0, 0, 5), App.Rotation())
sketch12.addGeometry(Part.Circle(V(12, 85, 0), V(0, 0, 1), 2), False)
sketch12.addConstraint([
    Sketcher.Constraint("Diameter", 0, 4.0),
    Sketcher.Constraint("DistanceX", -1, 1, 0, 3, 12.0),
    Sketcher.Constraint("DistanceY", -1, 1, 0, 3, 85.0),
])
pocket11 = doc.addObject("PartDesign::Pocket", "Pocket010")
body.addObject(pocket11)
pocket11.Profile = sketch12
pocket11.Type = "UpToFirst"

sketch13 = doc.addObject("Sketcher::SketchObject", "Sketch012")
body.addObject(sketch13)
sketch13.AttachmentSupport = (doc.XY_Plane, [""])
sketch13.MapMode = "FlatFace"
sketch13.AttachmentOffset = App.Placement(V(0, 0, 5), App.Rotation())
sketch13.addGeometry(Part.Circle(V(12, 70, 0), V(0, 0, 1), 10), False)
sketch13.addConstraint([
    Sketcher.Constraint("Diameter", 0, 21.0),
    Sketcher.Constraint("DistanceX", -1, 1, 0, 3, 12.0),
    Sketcher.Constraint("DistanceY", -1, 1, 0, 3, 70.0),
])
pocket12 = doc.addObject("PartDesign::Pocket", "Pocket011")
body.addObject(pocket12)
pocket12.Profile = sketch13
pocket12.Type = "UpToFirst"

sketch14 = doc.addObject("Sketcher::SketchObject", "Sketch013")
body.addObject(sketch14)
sketch14.AttachmentSupport = (doc.XY_Plane, [""])
sketch14.MapMode = "FlatFace"
sketch14.AttachmentOffset = App.Placement(V(0, 0, 5), App.Rotation())
sketch14.addGeometry(Part.Circle(V(12, 199, 0), V(0, 0, 1), 10), False)
sketch14.addConstraint([
    Sketcher.Constraint("Diameter", 0, 21.0),
    Sketcher.Constraint("DistanceX", -1, 1, 0, 3, 12.0),
    Sketcher.Constraint("DistanceY", -1, 1, 0, 3, 199.497475),
])
pocket13 = doc.addObject("PartDesign::Pocket", "Pocket012")
body.addObject(pocket13)
pocket13.Profile = sketch14
pocket13.Type = "UpToFirst"

sketch15 = doc.addObject("Sketcher::SketchObject", "Sketch014")
body.addObject(sketch15)
sketch15.AttachmentSupport = (doc.XY_Plane, [""])
sketch15.MapMode = "FlatFace"
sketch15.AttachmentOffset = App.Placement(V(0, 0, 5), App.Rotation())
sketch15.addGeometry(Part.Circle(V(-118, 11, 0), V(0, 0, 1), 3), False)
sketch15.addConstraint([
    Sketcher.Constraint("Diameter", 0, 6.0),
    Sketcher.Constraint("DistanceX", 0, 3, -1, 1, 118.0),
    Sketcher.Constraint("DistanceY", -1, 1, 0, 3, 11.0),
])
pocket14 = doc.addObject("PartDesign::Pocket", "Pocket013")
body.addObject(pocket14)
pocket14.Profile = sketch15
pocket14.Type = "UpToFirst"

sketch16 = doc.addObject("Sketcher::SketchObject", "Sketch015")
body.addObject(sketch16)
sketch16.AttachmentSupport = (doc.XY_Plane, [""])
sketch16.MapMode = "FlatFace"
sketch16.AttachmentOffset = App.Placement(V(0, 0, 5), App.Rotation())
sketch16.addGeometry(Part.Circle(V(-118, 258.5, 0), V(0, 0, 1), 3), False)
sketch16.addConstraint([
    Sketcher.Constraint("Diameter", 0, 6.0),
    Sketcher.Constraint("DistanceX", 0, 3, -1, 1, 118.0),
    Sketcher.Constraint("DistanceY", -1, 1, 0, 3, 258.497475),
])
pocket15 = doc.addObject("PartDesign::Pocket", "Pocket014")
body.addObject(pocket15)
pocket15.Profile = sketch16
pocket15.Type = "UpToFirst"

sketch17 = doc.addObject("Sketcher::SketchObject", "Sketch016")
body.addObject(sketch17)
sketch17.AttachmentSupport = (doc.XY_Plane, [""])
sketch17.MapMode = "FlatFace"
sketch17.AttachmentOffset = App.Placement(V(0, 0, 5), App.Rotation())
sketch17.addGeometry(Part.Circle(V(-12, 258.5, 0), V(0, 0, 1), 3), False)
sketch17.addConstraint([
    Sketcher.Constraint("Diameter", 0, 6.0),
    Sketcher.Constraint("DistanceX", 0, 3, -1, 1, 12.0),
    Sketcher.Constraint("DistanceY", -1, 1, 0, 3, 258.497475),
])
pocket16 = doc.addObject("PartDesign::Pocket", "Pocket015")
body.addObject(pocket16)
pocket16.Profile = sketch17
pocket16.Type = "UpToFirst"

sketch18 = doc.addObject("Sketcher::SketchObject", "Sketch017")
body.addObject(sketch18)
sketch18.AttachmentSupport = (doc.XY_Plane, [""])
sketch18.MapMode = "FlatFace"
sketch18.AttachmentOffset = App.Placement(V(0, 0, 5), App.Rotation())
sketch18.addGeometry(Part.Circle(V(-12, 11, 0), V(0, 0, 1), 3), False)
sketch18.addConstraint([
    Sketcher.Constraint("Diameter", 0, 6.0),
    Sketcher.Constraint("DistanceX", 0, 3, -1, 1, 12.0),
    Sketcher.Constraint("DistanceY", -1, 1, 0, 3, 11.0),
])
pocket17 = doc.addObject("PartDesign::Pocket", "Pocket016")
body.addObject(pocket17)
pocket17.Profile = sketch18
pocket17.Type = "UpToFirst"

sketch19 = doc.addObject("Sketcher::SketchObject", "Sketch018")
body.addObject(sketch19)
sketch19.AttachmentSupport = (doc.XY_Plane, [""])
sketch19.MapMode = "FlatFace"
sketch19.AttachmentOffset = App.Placement(V(0, 0, 5), App.Rotation())
sketch19.addGeometry([
    Part.Circle(V(-97, 174.5, 0), V(0, 0, 1), 2),
    Part.Circle(V(-97, 148.5, 0), V(0, 0, 1), 2),
    Part.Circle(V(-33, 148.5, 0), V(0, 0, 1), 2),
    Part.Circle(V(-33, 174.5, 0), V(0, 0, 1), 2),
    Part.Circle(V(-33, 121, 0), V(0, 0, 1), 2),
    Part.Circle(V(-33, 95, 0), V(0, 0, 1), 2),
    Part.Circle(V(-97, 121, 0), V(0, 0, 1), 2),
    Part.Circle(V(-97, 95, 0), V(0, 0, 1), 2),
], False)
sketch19.addConstraint([
    Sketcher.Constraint("Equal", 0, 1),
    Sketcher.Constraint("Equal", 1, 2),
    Sketcher.Constraint("Equal", 2, 3),
    Sketcher.Constraint("Equal", 3, 4),
    Sketcher.Constraint("Equal", 4, 5),
    Sketcher.Constraint("Equal", 5, 6),
    Sketcher.Constraint("Equal", 6, 7),
    Sketcher.Constraint("Horizontal", 1, 3, 2, 3),
    Sketcher.Constraint("Horizontal", 0, 3, 3, 3),
    Sketcher.Constraint("Horizontal", 4, 3, 6, 3),
    Sketcher.Constraint("Horizontal", 5, 3, 7, 3),
    Sketcher.Constraint("Vertical", 0, 3, 1, 3),
    Sketcher.Constraint("Vertical", 2, 3, 3, 3),
    Sketcher.Constraint("Vertical", 3, 3, 4, 3),
    Sketcher.Constraint("Vertical", 4, 3, 5, 3),
    Sketcher.Constraint("Vertical", 1, 3, 6, 3),
    Sketcher.Constraint("Vertical", 6, 3, 7, 3),
    Sketcher.Constraint("Diameter", 0, 4.0),
    Sketcher.Constraint("DistanceX", 0, 3, -1, 1, 97.0),
    Sketcher.Constraint("DistanceX", 2, 3, -1, 1, 33.0),
    Sketcher.Constraint("DistanceY", -1, 1, 4, 3, 121.0),
    Sketcher.Constraint("DistanceY", -1, 1, 5, 3, 95.0),
    Sketcher.Constraint("DistanceY", 1, 3, 0, 3, 26.0),
    Sketcher.Constraint("DistanceY", -1, 1, 0, 3, 174.497475),
])
pocket18 = doc.addObject("PartDesign::Pocket", "Pocket017")
body.addObject(pocket18)
pocket18.Profile = sketch19
pocket18.Type = "ThroughAll"

doc.recompute()
